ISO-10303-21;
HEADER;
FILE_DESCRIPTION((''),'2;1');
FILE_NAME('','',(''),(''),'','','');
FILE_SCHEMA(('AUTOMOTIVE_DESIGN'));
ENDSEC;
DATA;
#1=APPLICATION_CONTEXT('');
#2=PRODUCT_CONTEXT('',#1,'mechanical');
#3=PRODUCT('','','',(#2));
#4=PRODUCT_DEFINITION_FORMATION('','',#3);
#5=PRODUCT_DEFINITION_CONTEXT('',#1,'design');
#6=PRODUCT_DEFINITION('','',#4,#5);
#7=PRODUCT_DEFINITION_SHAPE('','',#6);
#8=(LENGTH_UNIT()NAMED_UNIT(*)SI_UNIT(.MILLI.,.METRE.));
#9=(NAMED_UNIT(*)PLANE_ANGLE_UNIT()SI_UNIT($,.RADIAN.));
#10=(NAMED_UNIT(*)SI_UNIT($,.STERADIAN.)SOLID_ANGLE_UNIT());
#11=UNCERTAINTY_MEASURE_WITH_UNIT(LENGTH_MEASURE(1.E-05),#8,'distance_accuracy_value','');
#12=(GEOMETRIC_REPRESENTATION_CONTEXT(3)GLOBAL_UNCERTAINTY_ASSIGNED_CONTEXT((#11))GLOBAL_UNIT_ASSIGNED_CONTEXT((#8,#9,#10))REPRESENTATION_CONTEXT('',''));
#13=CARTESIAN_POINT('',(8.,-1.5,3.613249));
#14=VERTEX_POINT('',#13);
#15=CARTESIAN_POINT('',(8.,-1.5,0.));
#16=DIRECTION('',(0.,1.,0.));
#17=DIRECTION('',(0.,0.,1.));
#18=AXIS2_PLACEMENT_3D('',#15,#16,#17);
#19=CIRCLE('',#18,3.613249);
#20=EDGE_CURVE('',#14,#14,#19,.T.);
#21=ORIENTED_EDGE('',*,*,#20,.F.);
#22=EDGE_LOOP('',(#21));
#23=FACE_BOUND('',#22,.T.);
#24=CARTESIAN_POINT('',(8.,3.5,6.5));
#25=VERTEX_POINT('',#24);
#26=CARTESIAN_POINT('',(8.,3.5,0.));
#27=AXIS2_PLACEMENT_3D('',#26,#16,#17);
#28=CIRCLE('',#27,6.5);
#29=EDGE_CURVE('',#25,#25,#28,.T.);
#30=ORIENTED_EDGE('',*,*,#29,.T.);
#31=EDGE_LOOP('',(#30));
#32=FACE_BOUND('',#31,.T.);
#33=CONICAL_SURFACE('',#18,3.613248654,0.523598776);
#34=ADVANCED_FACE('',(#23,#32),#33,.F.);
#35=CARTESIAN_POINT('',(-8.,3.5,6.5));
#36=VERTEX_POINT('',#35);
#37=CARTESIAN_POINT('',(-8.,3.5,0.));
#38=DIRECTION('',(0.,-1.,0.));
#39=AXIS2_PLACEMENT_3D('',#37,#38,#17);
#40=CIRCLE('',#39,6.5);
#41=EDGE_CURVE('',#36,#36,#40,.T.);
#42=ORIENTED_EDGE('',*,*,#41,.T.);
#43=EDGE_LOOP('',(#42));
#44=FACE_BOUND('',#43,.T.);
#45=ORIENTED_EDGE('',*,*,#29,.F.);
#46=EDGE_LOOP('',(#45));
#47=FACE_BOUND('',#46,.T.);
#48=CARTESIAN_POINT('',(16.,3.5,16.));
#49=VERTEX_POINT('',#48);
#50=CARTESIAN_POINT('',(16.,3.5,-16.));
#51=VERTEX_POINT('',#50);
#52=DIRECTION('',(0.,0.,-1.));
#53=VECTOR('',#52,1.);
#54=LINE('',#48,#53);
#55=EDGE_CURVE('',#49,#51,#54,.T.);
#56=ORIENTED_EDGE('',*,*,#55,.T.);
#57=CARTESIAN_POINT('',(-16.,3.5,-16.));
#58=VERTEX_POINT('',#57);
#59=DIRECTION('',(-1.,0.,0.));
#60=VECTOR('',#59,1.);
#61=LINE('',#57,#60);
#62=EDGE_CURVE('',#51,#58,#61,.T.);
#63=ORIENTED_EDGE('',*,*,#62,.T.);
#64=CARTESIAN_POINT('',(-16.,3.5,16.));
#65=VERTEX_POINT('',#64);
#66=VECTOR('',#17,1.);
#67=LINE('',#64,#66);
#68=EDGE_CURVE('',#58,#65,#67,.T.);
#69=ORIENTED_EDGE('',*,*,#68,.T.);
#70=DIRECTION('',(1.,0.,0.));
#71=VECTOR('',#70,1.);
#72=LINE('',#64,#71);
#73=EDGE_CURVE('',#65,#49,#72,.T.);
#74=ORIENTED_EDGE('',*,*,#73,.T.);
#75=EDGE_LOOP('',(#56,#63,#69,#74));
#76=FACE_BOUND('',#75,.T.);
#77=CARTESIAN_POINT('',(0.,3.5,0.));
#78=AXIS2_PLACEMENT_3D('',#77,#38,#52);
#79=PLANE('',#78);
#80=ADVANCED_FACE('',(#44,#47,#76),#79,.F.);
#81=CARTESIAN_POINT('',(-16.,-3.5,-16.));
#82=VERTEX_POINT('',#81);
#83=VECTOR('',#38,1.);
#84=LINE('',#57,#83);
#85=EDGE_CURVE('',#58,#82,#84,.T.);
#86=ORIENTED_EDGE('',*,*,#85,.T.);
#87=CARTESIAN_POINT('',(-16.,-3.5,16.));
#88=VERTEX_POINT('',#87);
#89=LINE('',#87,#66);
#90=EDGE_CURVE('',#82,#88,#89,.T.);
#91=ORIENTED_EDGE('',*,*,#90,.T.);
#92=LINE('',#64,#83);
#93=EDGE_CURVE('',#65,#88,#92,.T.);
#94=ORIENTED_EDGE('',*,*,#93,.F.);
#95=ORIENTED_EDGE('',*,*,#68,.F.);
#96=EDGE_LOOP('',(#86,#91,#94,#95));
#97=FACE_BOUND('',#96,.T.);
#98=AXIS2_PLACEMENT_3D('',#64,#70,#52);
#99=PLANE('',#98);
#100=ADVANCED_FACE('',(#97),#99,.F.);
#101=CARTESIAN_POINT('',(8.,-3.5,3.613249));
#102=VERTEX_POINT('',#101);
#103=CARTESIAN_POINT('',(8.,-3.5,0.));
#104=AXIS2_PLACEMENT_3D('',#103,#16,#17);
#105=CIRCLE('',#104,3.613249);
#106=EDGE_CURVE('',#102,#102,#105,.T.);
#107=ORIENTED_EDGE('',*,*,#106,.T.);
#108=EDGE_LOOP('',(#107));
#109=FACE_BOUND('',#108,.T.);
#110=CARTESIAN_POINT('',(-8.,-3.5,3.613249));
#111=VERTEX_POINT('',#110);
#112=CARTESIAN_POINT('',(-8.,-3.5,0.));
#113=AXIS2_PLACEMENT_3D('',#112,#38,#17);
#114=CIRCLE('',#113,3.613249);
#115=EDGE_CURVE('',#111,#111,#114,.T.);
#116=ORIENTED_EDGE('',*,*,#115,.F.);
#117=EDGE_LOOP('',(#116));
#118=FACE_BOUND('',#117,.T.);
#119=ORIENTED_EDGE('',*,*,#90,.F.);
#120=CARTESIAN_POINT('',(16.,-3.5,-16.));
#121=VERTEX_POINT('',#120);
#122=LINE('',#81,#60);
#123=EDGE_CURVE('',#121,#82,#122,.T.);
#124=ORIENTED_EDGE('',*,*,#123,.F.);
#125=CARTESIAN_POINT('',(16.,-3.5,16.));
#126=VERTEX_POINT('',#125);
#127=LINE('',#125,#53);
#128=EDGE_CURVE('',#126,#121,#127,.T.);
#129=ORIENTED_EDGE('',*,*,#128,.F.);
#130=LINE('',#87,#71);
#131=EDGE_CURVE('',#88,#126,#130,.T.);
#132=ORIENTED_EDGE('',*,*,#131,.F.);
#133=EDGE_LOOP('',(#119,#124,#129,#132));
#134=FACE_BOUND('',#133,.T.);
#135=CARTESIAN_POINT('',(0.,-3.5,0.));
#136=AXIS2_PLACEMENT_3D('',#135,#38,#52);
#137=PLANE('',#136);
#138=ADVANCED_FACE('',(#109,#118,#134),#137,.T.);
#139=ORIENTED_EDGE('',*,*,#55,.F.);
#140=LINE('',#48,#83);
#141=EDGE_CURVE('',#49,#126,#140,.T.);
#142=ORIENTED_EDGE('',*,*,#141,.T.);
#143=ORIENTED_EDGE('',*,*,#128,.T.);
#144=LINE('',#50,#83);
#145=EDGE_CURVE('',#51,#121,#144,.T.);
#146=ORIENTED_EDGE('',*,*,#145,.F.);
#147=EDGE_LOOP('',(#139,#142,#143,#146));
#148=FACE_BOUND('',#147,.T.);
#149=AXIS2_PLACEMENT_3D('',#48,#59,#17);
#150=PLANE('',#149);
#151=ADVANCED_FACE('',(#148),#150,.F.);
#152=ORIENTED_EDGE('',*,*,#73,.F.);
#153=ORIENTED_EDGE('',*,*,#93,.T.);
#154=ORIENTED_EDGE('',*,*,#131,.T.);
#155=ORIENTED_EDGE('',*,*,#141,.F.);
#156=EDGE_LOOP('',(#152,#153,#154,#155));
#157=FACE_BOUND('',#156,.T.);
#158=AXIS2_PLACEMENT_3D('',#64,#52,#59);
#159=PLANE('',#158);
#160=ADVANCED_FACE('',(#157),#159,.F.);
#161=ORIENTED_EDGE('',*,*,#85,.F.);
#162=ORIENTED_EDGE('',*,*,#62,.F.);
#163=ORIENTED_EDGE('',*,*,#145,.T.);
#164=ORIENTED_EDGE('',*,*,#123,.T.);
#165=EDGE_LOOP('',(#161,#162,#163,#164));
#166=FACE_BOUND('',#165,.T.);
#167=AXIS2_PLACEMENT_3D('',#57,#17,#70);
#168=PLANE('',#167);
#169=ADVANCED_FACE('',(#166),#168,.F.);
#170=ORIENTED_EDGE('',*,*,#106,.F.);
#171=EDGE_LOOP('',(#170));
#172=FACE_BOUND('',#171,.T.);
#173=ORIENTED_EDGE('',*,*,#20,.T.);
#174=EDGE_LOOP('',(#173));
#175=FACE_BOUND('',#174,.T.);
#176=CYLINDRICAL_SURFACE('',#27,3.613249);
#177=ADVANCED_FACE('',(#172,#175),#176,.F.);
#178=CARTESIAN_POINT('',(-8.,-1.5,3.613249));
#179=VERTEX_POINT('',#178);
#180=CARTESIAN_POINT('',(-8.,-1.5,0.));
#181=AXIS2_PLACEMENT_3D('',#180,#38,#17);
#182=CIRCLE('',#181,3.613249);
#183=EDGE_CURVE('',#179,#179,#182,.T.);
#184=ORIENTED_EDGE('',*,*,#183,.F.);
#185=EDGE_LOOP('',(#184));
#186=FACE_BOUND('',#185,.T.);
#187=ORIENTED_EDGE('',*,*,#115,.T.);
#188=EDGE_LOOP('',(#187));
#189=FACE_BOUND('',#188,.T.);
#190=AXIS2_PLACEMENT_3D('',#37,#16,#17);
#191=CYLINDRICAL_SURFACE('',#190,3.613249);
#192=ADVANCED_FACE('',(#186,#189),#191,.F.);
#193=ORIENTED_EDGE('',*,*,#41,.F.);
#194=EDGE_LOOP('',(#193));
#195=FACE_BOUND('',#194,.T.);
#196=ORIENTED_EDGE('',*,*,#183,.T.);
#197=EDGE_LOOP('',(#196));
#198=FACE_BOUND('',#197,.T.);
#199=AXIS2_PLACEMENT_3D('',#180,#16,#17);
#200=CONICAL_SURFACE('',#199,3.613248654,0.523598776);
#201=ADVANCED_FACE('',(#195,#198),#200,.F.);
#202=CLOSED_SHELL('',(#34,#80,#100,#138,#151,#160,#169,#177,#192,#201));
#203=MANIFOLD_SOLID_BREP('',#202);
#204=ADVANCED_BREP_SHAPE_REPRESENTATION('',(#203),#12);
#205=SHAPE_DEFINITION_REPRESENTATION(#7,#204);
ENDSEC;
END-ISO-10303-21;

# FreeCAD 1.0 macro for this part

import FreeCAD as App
import Part
import Sketcher
from FreeCAD import Vector
Q = App.Units.Quantity

doc = App.newDocument("Part")
body = doc.addObject("PartDesign::Body", "Body")

# Sketch on XZ plane
sketch1 = doc.addObject("Sketcher::SketchObject", "Sketch")
body.addObject(sketch1)
sketch1.AttachmentSupport = (doc.XZ_Plane, [""])
sketch1.MapMode = "FlatFace"
sketch1.addGeometry([
    Part.LineSegment(Vector(-16, -16, 0), Vector(-16, 16, 0)),
    Part.LineSegment(Vector(-16, 16, 0), Vector(16, 16, 0)),
    Part.LineSegment(Vector(16, 16, 0), Vector(16, -16, 0)),
    Part.LineSegment(Vector(16, -16, 0), Vector(-16, -16, 0)),
], False)
sketch1.addConstraint([
    Sketcher.Constraint("Coincident", 0, 2, 1, 1),
    Sketcher.Constraint("Coincident", 1, 2, 2, 1),
    Sketcher.Constraint("Coincident", 2, 2, 3, 1),
    Sketcher.Constraint("Coincident", 3, 2, 0, 1),
    Sketcher.Constraint("Vertical", 0),
    Sketcher.Constraint("Horizontal", 1),
    Sketcher.Constraint("Vertical", 2),
    Sketcher.Constraint("Horizontal", 3),
    Sketcher.Constraint("Symmetric", 0, 2, 2, 2, -1, 1),
    Sketcher.Constraint("Equal", 3, 0),
    Sketcher.Constraint("DistanceX", 1, 1, 1, 2, 32.0),
])
pad1 = doc.addObject("PartDesign::Pad", "Pad")
body.addObject(pad1)
pad1.Profile = sketch1
pad1.Length = 7
pad1.Midplane = True

# Sketch on XY plane
sketch2 = doc.addObject("Sketcher::SketchObject", "Sketch001")
body.addObject(sketch2)
sketch2.AttachmentSupport = (doc.XY_Plane, [""])
sketch2.MapMode = "FlatFace"
sketch2.addGeometry([
    Part.LineSegment(Vector(14.5, 3.5, 0), Vector(8, 3.5, 0)),  # 0
    Part.LineSegment(Vector(8, 3.5, 0), Vector(8, -3.5, 0)),  # 1
    Part.LineSegment(Vector(8, -3.5, 0), Vector(11.613249, -3.5, 0)),  # 2
    Part.LineSegment(Vector(11.613249, -3.5, 0), Vector(11.613249, -1.5, 0)),  # 3
    Part.LineSegment(Vector(11.613249, -1.5, 0), Vector(14.5, 3.5, 0)),  # 4
], False)
sketch2.addGeometry(Part.LineSegment(Vector(8, 3.5, 0), Vector(8, -3.5, 0)), True)  # axis
sketch2.addConstraint([
    Sketcher.Constraint("Coincident", 0, 2, 1, 1),
    Sketcher.Constraint("Coincident", 1, 2, 2, 1),
    Sketcher.Constraint("Coincident", 2, 2, 3, 1),
    Sketcher.Constraint("Coincident", 3, 2, 4, 1),
    Sketcher.Constraint("Coincident", 4, 2, 0, 1),
    Sketcher.Constraint("Horizontal", 0),
    Sketcher.Constraint("Vertical", 1),
    Sketcher.Constraint("Horizontal", 2),
    Sketcher.Constraint("Vertical", 3),
    Sketcher.Constraint("Vertical", 5),
    Sketcher.Constraint("Coincident", 5, 1, 0, 2),
    Sketcher.Constraint("Horizontal", 2, 2, 5, 2),
    Sketcher.Constraint("DistanceY", 1, 2, 1, 1, 7.0),
    Sketcher.Constraint("DistanceY", 3, 1, 3, 2, 2.0),
    Sketcher.Constraint("Angle", 4, Q("60 deg")),
    Sketcher.Constraint("DistanceX", 0, 2, 0, 1, 6.5),
    Sketcher.Constraint("DistanceX", -1, 1, 0, 2, 8.0),
    Sketcher.Constraint("DistanceY", -1, 1, 0, 2, 3.5),
])
groove = doc.addObject("PartDesign::Groove", "Groove")
body.addObject(groove)
groove.Profile = sketch2
groove.ReferenceAxis = (sketch2, ["Axis0"])
groove.Angle = 360
doc.recompute()

mirrored = doc.addObject("PartDesign::Mirrored", "Mirrored")
body.addObject(mirrored)
mirrored.Originals = [groove]
mirrored.MirrorPlane = (doc.YZ_Plane, [""])
body.Tip = mirrored

doc.recompute()
